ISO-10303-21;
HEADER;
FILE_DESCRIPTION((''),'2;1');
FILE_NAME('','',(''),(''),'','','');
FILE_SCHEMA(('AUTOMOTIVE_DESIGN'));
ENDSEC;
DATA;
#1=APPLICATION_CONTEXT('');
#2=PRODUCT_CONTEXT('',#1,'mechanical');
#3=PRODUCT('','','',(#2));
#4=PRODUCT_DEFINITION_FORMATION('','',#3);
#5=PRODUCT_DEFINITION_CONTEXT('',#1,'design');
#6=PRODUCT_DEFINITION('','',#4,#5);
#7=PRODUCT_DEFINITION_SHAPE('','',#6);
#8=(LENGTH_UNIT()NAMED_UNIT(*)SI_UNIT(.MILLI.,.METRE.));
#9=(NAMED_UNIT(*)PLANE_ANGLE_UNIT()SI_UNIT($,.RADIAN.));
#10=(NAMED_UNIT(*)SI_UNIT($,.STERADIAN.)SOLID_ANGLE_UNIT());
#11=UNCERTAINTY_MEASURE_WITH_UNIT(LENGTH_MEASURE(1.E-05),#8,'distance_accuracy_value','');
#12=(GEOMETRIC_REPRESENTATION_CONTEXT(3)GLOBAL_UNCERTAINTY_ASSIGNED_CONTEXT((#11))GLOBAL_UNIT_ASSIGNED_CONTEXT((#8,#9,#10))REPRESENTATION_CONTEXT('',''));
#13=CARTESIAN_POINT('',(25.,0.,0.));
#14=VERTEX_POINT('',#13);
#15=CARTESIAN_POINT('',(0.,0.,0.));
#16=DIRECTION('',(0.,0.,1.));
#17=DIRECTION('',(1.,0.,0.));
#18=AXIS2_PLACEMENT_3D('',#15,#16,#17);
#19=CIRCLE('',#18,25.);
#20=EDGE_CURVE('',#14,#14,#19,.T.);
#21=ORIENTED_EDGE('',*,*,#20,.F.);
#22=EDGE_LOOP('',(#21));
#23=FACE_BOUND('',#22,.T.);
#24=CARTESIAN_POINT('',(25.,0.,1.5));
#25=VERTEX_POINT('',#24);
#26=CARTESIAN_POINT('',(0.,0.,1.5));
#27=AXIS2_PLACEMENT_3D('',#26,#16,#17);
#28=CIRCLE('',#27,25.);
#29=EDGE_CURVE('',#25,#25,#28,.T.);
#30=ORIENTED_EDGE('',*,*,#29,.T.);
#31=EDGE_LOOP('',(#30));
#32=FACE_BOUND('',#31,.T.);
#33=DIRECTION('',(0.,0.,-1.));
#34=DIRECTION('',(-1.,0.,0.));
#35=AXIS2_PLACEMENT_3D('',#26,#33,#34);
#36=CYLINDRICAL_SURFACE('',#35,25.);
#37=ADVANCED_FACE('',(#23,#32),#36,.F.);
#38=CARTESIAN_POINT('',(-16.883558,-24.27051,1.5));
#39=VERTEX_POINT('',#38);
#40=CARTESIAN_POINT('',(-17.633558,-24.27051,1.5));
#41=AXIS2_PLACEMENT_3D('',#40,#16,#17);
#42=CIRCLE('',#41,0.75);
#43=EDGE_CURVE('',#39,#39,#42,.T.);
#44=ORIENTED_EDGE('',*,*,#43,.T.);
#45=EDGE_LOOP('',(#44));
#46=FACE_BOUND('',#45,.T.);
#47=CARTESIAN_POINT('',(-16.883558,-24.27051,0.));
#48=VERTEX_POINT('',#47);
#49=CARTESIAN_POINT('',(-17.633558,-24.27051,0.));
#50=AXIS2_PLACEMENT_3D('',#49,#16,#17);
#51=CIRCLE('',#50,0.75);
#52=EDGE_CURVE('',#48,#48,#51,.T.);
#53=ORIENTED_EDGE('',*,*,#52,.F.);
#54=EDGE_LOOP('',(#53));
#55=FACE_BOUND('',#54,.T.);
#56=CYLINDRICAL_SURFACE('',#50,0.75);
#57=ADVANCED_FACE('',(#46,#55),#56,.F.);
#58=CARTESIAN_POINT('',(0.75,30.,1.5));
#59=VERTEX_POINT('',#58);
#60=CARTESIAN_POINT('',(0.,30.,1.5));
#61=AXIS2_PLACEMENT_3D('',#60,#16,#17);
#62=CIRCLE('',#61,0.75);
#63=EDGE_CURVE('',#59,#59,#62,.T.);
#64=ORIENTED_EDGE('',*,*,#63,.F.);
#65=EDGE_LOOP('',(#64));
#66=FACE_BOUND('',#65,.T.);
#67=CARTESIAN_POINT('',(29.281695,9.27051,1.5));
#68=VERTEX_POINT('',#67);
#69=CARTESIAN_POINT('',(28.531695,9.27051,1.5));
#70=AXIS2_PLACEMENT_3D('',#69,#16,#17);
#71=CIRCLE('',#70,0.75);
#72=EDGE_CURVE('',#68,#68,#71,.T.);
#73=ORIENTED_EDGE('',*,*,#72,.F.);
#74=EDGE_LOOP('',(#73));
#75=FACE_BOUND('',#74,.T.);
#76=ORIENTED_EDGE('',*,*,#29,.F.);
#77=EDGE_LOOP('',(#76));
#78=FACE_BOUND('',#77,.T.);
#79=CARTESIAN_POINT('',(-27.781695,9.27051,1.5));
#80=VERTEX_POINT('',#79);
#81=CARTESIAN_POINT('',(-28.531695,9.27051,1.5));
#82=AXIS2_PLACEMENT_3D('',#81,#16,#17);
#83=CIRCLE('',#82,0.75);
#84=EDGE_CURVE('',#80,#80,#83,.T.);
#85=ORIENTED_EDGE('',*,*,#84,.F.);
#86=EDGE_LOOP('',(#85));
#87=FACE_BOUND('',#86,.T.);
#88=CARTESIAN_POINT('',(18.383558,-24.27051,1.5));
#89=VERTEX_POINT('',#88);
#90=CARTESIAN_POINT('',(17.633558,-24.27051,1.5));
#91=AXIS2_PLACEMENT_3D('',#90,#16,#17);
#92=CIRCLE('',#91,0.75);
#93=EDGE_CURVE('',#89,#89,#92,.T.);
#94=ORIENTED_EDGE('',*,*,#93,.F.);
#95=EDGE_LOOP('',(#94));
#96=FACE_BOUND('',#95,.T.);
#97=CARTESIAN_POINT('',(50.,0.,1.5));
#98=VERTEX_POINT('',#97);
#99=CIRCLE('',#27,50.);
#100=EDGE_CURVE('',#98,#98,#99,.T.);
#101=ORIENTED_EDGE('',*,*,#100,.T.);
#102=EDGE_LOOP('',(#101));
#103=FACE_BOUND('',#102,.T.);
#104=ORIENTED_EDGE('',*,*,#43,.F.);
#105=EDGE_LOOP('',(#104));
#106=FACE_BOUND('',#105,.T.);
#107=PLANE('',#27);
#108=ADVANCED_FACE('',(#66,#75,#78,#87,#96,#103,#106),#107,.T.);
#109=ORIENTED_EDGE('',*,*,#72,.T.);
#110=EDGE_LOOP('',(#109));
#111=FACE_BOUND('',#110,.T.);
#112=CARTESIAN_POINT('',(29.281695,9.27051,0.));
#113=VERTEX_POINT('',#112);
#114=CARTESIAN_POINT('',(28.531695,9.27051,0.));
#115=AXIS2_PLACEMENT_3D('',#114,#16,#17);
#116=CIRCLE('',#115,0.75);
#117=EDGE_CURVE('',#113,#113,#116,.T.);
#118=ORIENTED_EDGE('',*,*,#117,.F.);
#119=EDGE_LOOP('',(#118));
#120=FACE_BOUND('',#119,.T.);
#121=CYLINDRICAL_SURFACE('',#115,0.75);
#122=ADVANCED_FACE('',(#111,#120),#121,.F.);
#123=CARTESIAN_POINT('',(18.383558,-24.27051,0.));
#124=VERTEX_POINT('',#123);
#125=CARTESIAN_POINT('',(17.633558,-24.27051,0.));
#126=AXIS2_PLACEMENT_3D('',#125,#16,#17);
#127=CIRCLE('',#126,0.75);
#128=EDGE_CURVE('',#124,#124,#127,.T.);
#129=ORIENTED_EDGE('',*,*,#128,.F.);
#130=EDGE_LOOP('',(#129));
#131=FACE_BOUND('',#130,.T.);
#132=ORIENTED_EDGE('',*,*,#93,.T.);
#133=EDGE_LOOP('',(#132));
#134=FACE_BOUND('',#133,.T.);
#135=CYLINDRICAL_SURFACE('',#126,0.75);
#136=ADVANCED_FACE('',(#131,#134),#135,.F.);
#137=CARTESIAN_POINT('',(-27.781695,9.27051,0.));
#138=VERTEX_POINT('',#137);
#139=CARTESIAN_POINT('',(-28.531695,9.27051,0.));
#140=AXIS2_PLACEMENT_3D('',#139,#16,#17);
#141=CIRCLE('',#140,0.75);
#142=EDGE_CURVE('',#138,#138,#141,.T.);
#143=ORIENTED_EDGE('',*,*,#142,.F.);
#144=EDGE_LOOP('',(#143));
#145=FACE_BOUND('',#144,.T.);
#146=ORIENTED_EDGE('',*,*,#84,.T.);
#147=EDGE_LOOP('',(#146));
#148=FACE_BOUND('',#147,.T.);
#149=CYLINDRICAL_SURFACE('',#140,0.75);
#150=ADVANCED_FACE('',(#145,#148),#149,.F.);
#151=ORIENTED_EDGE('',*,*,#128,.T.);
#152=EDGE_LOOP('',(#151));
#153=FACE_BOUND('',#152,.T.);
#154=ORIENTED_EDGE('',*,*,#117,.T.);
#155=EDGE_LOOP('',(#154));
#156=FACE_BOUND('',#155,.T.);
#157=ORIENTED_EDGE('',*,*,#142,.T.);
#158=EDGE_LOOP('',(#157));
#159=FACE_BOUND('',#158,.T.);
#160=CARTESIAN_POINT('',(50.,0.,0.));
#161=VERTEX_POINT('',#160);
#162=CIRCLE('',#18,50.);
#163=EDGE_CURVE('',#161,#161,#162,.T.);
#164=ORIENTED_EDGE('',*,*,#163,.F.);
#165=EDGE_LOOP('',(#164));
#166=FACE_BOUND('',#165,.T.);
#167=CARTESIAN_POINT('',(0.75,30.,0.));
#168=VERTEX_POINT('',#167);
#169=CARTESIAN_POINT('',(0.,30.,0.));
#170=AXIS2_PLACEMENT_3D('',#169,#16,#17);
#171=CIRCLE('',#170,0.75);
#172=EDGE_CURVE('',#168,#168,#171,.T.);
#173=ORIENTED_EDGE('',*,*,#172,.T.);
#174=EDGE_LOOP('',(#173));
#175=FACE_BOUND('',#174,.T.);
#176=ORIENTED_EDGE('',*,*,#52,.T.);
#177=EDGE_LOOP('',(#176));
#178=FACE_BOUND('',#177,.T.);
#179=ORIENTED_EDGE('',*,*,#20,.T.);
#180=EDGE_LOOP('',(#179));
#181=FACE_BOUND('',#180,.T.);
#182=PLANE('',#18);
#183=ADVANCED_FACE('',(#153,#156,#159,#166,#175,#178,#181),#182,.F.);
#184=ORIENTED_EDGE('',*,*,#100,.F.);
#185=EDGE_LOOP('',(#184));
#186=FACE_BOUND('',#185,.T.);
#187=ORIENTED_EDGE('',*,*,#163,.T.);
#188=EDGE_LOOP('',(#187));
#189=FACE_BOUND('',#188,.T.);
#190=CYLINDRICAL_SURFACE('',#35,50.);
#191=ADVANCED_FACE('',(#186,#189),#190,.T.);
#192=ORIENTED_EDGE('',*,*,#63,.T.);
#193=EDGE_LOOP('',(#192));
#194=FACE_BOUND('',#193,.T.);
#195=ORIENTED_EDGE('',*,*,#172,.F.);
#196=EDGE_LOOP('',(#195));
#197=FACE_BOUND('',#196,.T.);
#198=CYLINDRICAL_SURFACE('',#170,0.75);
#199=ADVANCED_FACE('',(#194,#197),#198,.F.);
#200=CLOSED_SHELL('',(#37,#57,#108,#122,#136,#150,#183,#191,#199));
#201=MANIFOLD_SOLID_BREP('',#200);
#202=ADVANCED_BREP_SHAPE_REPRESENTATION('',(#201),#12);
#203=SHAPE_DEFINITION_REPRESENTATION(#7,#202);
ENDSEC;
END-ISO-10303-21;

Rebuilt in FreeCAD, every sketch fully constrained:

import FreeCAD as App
import Part
import Sketcher
Q = App.Units.Quantity

doc = App.newDocument("Part")
body = doc.addObject("PartDesign::Body", "Body")

sketch1 = doc.addObject("Sketcher::SketchObject", "Sketch")
body.addObject(sketch1)
sketch1.AttachmentSupport = (doc.XY_Plane, [""])
sketch1.MapMode = "FlatFace"
sketch1.addGeometry([
    Part.Circle(App.Vector(0, 0, 0), App.Vector(0, 0, 1), 50),
    Part.Circle(App.Vector(0, 0, 0), App.Vector(0, 0, 1), 25),
], False)
sketch1.addConstraint([
    Sketcher.Constraint("Coincident", 0, 3, -1, 1),
    Sketcher.Constraint("Coincident", 1, 3, -1, 1),
    Sketcher.Constraint("Diameter", 0, Q("100 mm")),
    Sketcher.Constraint("Diameter", 1, Q("50 mm")),
])
pad1 = doc.addObject("PartDesign::Pad", "Pad")
body.addObject(pad1)
pad1.Profile = sketch1
pad1.Length = 1.5

sketch2 = doc.addObject("Sketcher::SketchObject", "Sketch001")
body.addObject(sketch2)
sketch2.AttachmentSupport = (doc.XY_Plane, [""])
sketch2.MapMode = "FlatFace"
sketch2.AttachmentOffset = App.Placement(App.Vector(0, 0, 1.5), App.Rotation())
sketch2.addGeometry([
    Part.Circle(App.Vector(0, 30, 0), App.Vector(0, 0, 1), 0.8),
    Part.Circle(App.Vector(28.5, 9.3, 0), App.Vector(0, 0, 1), 0.8),
    Part.Circle(App.Vector(17.6, -24.3, 0), App.Vector(0, 0, 1), 0.8),
    Part.Circle(App.Vector(-17.6, -24.3, 0), App.Vector(0, 0, 1), 0.8),
    Part.Circle(App.Vector(-28.5, 9.3, 0), App.Vector(0, 0, 1), 0.8),
], False)
sketch2.addConstraint([
    Sketcher.Constraint("Equal", 0, 1),
    Sketcher.Constraint("Equal", 1, 2),
    Sketcher.Constraint("Equal", 2, 3),
    Sketcher.Constraint("Equal", 3, 4),
    Sketcher.Constraint("Symmetric", 2, 3, 3, 3, -2),
    Sketcher.Constraint("Symmetric", 1, 3, 4, 3, -2),
    Sketcher.Constraint("PointOnObject", 0, 3, -2),
    Sketcher.Constraint("Diameter", 0, Q("1.5 mm")),
    Sketcher.Constraint("DistanceY", -1, 1, 0, 3, Q("30 mm")),
    Sketcher.Constraint("DistanceY", -1, 1, 1, 3, Q("9.27051 mm")),
    Sketcher.Constraint("DistanceY", 2, 3, -1, 1, Q("24.27051 mm")),
    Sketcher.Constraint("DistanceX", 4, 3, 1, 3, Q("57.063391 mm")),
    Sketcher.Constraint("DistanceX", -1, 1, 2, 3, Q("17.633558 mm")),
])
pocket1 = doc.addObject("PartDesign::Pocket", "Pocket")
body.addObject(pocket1)
pocket1.Profile = sketch2
pocket1.Type = "ThroughAll"

doc.recompute()
